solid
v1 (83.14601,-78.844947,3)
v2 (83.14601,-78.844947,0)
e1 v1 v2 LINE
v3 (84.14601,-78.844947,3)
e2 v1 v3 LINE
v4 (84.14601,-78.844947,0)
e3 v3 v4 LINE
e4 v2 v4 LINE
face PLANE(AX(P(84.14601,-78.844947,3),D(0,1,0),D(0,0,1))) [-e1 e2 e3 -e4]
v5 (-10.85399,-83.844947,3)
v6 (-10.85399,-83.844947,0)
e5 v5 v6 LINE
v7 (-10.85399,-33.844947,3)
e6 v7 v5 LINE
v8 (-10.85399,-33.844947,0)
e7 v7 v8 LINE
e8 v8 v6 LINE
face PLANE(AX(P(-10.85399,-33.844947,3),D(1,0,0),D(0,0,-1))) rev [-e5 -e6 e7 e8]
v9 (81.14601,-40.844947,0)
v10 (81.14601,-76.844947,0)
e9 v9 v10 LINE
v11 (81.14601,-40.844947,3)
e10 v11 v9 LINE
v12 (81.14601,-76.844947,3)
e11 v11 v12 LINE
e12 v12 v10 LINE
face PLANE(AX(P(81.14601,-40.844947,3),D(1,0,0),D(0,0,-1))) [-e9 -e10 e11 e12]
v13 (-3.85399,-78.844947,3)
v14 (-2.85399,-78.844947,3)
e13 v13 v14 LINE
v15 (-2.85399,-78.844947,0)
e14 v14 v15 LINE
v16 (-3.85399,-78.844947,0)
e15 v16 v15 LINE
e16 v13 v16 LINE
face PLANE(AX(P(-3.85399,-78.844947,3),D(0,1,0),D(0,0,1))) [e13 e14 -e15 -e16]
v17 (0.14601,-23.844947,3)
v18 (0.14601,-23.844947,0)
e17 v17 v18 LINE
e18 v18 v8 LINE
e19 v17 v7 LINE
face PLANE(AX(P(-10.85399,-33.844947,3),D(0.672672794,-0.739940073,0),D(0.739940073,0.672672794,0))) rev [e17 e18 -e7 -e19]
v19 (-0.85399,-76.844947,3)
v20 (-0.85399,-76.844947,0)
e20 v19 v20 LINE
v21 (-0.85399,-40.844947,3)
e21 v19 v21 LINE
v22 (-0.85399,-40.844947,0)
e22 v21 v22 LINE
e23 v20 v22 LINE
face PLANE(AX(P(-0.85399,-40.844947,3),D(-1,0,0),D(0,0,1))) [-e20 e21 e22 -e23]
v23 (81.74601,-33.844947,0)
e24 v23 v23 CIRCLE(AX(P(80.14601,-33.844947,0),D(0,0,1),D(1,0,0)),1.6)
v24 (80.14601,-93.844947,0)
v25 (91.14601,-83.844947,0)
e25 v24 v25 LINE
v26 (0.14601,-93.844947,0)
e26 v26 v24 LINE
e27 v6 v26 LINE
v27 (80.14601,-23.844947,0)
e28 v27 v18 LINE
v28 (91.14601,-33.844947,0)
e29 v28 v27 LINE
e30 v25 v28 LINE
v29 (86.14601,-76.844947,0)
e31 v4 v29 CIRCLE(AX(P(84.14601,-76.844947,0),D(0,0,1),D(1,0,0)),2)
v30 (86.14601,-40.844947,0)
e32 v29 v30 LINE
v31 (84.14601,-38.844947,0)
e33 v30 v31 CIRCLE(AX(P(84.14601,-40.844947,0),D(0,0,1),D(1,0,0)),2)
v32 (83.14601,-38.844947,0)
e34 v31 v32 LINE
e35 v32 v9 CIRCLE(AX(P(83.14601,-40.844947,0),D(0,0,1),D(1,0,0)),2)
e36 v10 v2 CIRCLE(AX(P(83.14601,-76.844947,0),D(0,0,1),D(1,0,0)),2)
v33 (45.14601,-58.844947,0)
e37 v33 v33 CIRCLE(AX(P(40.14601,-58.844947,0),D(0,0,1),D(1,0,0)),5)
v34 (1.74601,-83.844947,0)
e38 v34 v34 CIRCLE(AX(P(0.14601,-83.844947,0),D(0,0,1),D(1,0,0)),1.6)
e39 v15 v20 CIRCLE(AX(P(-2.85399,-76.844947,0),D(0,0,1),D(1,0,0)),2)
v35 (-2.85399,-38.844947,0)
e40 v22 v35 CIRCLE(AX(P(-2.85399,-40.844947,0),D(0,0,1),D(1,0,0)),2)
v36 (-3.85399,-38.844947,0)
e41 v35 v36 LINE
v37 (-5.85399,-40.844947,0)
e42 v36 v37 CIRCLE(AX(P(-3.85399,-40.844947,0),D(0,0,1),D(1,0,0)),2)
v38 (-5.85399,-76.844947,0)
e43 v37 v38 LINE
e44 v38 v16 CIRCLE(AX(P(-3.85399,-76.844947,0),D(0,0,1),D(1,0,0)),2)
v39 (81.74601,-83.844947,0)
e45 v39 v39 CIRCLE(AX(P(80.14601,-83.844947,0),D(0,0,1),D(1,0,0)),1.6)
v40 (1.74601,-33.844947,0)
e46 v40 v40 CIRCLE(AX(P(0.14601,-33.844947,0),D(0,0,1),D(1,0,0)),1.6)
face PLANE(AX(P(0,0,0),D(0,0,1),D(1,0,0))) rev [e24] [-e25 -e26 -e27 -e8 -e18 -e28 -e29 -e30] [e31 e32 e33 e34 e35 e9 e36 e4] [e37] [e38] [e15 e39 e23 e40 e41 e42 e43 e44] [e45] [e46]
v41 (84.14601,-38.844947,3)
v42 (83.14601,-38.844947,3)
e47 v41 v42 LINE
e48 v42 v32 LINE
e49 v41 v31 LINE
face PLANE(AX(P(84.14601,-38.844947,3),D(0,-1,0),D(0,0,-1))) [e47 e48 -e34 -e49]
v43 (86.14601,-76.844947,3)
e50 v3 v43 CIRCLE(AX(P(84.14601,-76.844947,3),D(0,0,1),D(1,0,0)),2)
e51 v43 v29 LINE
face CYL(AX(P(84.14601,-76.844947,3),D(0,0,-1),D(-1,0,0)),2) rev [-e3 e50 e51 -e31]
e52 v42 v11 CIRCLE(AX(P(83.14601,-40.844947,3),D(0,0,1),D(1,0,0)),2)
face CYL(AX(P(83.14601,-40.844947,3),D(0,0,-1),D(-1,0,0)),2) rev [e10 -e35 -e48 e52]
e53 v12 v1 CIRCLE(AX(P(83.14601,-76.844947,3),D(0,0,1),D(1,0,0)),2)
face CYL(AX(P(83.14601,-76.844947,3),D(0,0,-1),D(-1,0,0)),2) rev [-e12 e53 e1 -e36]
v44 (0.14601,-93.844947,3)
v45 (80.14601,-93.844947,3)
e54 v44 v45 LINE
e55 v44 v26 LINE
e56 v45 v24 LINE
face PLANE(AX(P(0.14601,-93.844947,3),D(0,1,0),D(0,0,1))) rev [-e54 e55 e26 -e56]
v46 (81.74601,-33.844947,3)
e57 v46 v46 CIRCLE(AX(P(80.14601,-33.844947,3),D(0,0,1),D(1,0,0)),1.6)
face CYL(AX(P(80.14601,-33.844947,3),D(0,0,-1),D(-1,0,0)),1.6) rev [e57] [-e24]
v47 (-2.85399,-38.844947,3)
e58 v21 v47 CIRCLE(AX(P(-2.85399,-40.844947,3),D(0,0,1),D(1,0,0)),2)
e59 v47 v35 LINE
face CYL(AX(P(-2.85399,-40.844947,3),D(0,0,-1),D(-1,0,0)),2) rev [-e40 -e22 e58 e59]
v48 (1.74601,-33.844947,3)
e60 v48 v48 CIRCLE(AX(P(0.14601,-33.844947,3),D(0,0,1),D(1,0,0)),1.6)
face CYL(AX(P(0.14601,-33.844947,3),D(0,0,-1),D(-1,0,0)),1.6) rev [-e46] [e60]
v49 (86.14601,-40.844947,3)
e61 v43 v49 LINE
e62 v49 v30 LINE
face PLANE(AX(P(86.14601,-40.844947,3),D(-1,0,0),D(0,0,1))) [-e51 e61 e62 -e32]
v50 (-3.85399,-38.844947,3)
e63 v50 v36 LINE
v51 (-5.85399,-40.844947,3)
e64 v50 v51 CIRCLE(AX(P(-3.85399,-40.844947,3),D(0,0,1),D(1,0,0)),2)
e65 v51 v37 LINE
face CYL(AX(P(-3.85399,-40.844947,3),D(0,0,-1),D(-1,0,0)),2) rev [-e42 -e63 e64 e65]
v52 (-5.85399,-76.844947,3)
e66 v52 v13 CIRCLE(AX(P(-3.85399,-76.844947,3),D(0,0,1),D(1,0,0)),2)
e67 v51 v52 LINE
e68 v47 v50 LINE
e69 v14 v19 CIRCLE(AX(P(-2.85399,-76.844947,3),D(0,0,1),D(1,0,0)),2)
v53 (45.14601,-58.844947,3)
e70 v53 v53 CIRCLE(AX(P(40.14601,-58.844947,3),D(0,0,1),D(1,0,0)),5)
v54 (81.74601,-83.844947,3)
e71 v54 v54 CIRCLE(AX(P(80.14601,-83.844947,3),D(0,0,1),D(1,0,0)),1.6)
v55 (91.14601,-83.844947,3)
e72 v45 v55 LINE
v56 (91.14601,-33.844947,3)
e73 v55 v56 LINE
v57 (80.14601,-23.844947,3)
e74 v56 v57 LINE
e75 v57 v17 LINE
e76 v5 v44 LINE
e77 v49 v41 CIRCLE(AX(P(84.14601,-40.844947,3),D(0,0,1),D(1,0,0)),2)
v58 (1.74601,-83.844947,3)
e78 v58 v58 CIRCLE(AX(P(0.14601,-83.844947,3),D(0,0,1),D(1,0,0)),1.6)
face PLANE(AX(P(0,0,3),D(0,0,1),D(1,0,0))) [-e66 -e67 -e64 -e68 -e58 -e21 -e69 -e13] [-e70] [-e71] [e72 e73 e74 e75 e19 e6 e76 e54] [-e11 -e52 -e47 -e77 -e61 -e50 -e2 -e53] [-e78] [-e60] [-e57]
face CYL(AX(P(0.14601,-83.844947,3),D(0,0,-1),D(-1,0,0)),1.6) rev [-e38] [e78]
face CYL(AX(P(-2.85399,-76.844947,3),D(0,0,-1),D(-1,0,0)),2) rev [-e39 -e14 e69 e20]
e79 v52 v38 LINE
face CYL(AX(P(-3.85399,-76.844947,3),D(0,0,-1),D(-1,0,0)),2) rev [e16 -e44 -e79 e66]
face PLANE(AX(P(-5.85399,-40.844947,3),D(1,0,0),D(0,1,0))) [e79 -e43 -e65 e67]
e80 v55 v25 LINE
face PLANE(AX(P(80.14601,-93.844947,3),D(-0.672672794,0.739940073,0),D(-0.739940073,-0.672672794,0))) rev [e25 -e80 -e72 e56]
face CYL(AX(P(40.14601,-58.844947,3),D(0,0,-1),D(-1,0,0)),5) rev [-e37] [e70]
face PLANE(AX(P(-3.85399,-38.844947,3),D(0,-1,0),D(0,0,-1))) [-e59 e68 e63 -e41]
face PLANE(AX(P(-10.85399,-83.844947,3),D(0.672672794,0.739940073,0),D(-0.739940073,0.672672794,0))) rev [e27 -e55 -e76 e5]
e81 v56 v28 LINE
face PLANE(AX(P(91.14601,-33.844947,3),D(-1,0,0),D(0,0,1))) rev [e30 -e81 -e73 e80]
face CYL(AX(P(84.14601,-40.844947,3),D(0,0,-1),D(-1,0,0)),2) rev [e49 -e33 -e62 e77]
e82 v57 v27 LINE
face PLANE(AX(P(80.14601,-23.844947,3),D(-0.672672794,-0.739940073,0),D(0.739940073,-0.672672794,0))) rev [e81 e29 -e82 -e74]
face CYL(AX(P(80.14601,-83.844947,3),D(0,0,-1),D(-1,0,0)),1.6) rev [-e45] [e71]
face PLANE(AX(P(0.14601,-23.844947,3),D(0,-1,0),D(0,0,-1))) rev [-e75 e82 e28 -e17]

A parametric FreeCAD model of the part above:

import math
import FreeCAD as App
import Part
import Sketcher

V = App.Vector


def add_polygon(sketch, points):
    """Adds a closed chain of lines whose ends are joined by coincident constraints."""
    first, n = sketch.GeometryCount, len(points)
    for a, b in zip(points, points[1:] + points[:1]):
        sketch.addGeometry(Part.LineSegment(App.Vector(*a, 0), App.Vector(*b, 0)), False)
    for i in range(n):
        sketch.addConstraint(Sketcher.Constraint("Coincident", first + i, 2, first + (i + 1) % n, 1))

doc = App.newDocument("Part")
body = doc.addObject("PartDesign::Body", "Body")

# Sketch on XY plane
sketch1 = doc.addObject("Sketcher::SketchObject", "Sketch")
body.addObject(sketch1)
sketch1.AttachmentSupport = (doc.XY_Plane, [""])
sketch1.MapMode = "FlatFace"
add_polygon(sketch1, [(0.14601, -23.844947), (-10.85399, -33.844947), (-10.85399, -83.844947), (0.14601, -93.844947), (80.14601, -93.844947), (91.14601, -83.844947), (91.14601, -33.844947), (80.14601, -23.844947)])  # lines 0-7
sketch1.addGeometry(Part.Circle(V(80.14601, -83.844947, 0), V(0, 0, 1), 1.6), False)  # 8
sketch1.addGeometry(Part.Circle(V(0.14601, -83.844947, 0), V(0, 0, 1), 1.6), False)  # 9
sketch1.addGeometry(Part.ArcOfCircle(Part.Circle(V(84.14601, -40.844947, 0), V(0, 0, 1), 2), math.radians(0), math.radians(90)), False)  # 10
sketch1.addGeometry(Part.LineSegment(V(86.14601, -40.844947, 0), V(86.14601, -76.844947, 0)), False)  # 11
sketch1.addGeometry(Part.ArcOfCircle(Part.Circle(V(84.14601, -76.844947, 0), V(0, 0, 1), 2), math.radians(-90), math.radians(0)), False)  # 12
sketch1.addGeometry(Part.LineSegment(V(84.14601, -78.844947, 0), V(83.14601, -78.844947, 0)), False)  # 13
sketch1.addGeometry(Part.ArcOfCircle(Part.Circle(V(83.14601, -76.844947, 0), V(0, 0, 1), 2), math.radians(-180), math.radians(-90)), False)  # 14
sketch1.addGeometry(Part.LineSegment(V(81.14601, -76.844947, 0), V(81.14601, -40.844947, 0)), False)  # 15
sketch1.addGeometry(Part.ArcOfCircle(Part.Circle(V(83.14601, -40.844947, 0), V(0, 0, 1), 2), math.radians(90), math.radians(180)), False)  # 16
sketch1.addGeometry(Part.LineSegment(V(83.14601, -38.844947, 0), V(84.14601, -38.844947, 0)), False)  # 17
sketch1.addGeometry(Part.Circle(V(80.14601, -33.844947, 0), V(0, 0, 1), 1.6), False)  # 18
sketch1.addGeometry(Part.Circle(V(40.14601, -58.844947, 0), V(0, 0, 1), 5), False)  # 19
sketch1.addGeometry(Part.LineSegment(V(-3.85399, -38.844947, 0), V(-2.85399, -38.844947, 0)), False)  # 20
sketch1.addGeometry(Part.ArcOfCircle(Part.Circle(V(-2.85399, -40.844947, 0), V(0, 0, 1), 2), math.radians(0), math.radians(90)), False)  # 21
sketch1.addGeometry(Part.LineSegment(V(-0.85399, -40.844947, 0), V(-0.85399, -76.844947, 0)), False)  # 22
sketch1.addGeometry(Part.ArcOfCircle(Part.Circle(V(-2.85399, -76.844947, 0), V(0, 0, 1), 2), math.radians(-90), math.radians(0)), False)  # 23
sketch1.addGeometry(Part.LineSegment(V(-2.85399, -78.844947, 0), V(-3.85399, -78.844947, 0)), False)  # 24
sketch1.addGeometry(Part.ArcOfCircle(Part.Circle(V(-3.85399, -76.844947, 0), V(0, 0, 1), 2), math.radians(-180), math.radians(-90)), False)  # 25
sketch1.addGeometry(Part.LineSegment(V(-5.85399, -76.844947, 0), V(-5.85399, -40.844947, 0)), False)  # 26
sketch1.addGeometry(Part.ArcOfCircle(Part.Circle(V(-3.85399, -40.844947, 0), V(0, 0, 1), 2), math.radians(90), math.radians(180)), False)  # 27
sketch1.addGeometry(Part.Circle(V(0.14601, -33.844947, 0), V(0, 0, 1), 1.6), False)  # 28
sketch1.addConstraint(Sketcher.Constraint("Tangent", 10, 1, 11, 1))
sketch1.addConstraint(Sketcher.Constraint("Tangent", 11, 2, 12, 2))
sketch1.addConstraint(Sketcher.Constraint("Tangent", 12, 1, 13, 1))
sketch1.addConstraint(Sketcher.Constraint("Tangent", 13, 2, 14, 2))
sketch1.addConstraint(Sketcher.Constraint("Tangent", 14, 1, 15, 1))
sketch1.addConstraint(Sketcher.Constraint("Tangent", 15, 2, 16, 2))
sketch1.addConstraint(Sketcher.Constraint("Tangent", 16, 1, 17, 1))
sketch1.addConstraint(Sketcher.Constraint("Tangent", 17, 2, 10, 2))
sketch1.addConstraint(Sketcher.Constraint("Tangent", 20, 2, 21, 2))
sketch1.addConstraint(Sketcher.Constraint("Tangent", 21, 1, 22, 1))
sketch1.addConstraint(Sketcher.Constraint("Tangent", 22, 2, 23, 2))
sketch1.addConstraint(Sketcher.Constraint("Tangent", 23, 1, 24, 1))
sketch1.addConstraint(Sketcher.Constraint("Tangent", 24, 2, 25, 2))
sketch1.addConstraint(Sketcher.Constraint("Tangent", 25, 1, 26, 1))
sketch1.addConstraint(Sketcher.Constraint("Tangent", 26, 2, 27, 2))
sketch1.addConstraint(Sketcher.Constraint("Tangent", 27, 1, 20, 1))
sketch1.addConstraint(Sketcher.Constraint("Vertical", 1))
sketch1.addConstraint(Sketcher.Constraint("Horizontal", 3))
sketch1.addConstraint(Sketcher.Constraint("Vertical", 5))
sketch1.addConstraint(Sketcher.Constraint("Horizontal", 7))
sketch1.addConstraint(Sketcher.Constraint("Vertical", 11))
sketch1.addConstraint(Sketcher.Constraint("Horizontal", 13))
sketch1.addConstraint(Sketcher.Constraint("Vertical", 15))
sketch1.addConstraint(Sketcher.Constraint("Horizontal", 17))
sketch1.addConstraint(Sketcher.Constraint("Horizontal", 20))
sketch1.addConstraint(Sketcher.Constraint("Vertical", 22))
sketch1.addConstraint(Sketcher.Constraint("Horizontal", 24))
sketch1.addConstraint(Sketcher.Constraint("Vertical", 26))
sketch1.addConstraint(Sketcher.Constraint("Equal", 8, 9))
sketch1.addConstraint(Sketcher.Constraint("Equal", 10, 12))
sketch1.addConstraint(Sketcher.Constraint("Equal", 12, 14))
sketch1.addConstraint(Sketcher.Constraint("Equal", 14, 16))
sketch1.addConstraint(Sketcher.Constraint("Equal", 9, 18))
sketch1.addConstraint(Sketcher.Constraint("Equal", 16, 21))
sketch1.addConstraint(Sketcher.Constraint("Equal", 21, 23))
sketch1.addConstraint(Sketcher.Constraint("Equal", 23, 25))
sketch1.addConstraint(Sketcher.Constraint("Equal", 25, 27))
sketch1.addConstraint(Sketcher.Constraint("Equal", 18, 28))
sketch1.addConstraint(Sketcher.Constraint("Parallel", 0, 4))
sketch1.addConstraint(Sketcher.Constraint("Parallel", 2, 6))
sketch1.addConstraint(Sketcher.Constraint("Horizontal", 8, 3, 9, 3))
sketch1.addConstraint(Sketcher.Constraint("Horizontal", 16, 3, 21, 3))
sketch1.addConstraint(Sketcher.Constraint("Horizontal", 14, 3, 23, 3))
sketch1.addConstraint(Sketcher.Constraint("Horizontal", 18, 3, 28, 3))
sketch1.addConstraint(Sketcher.Constraint("Horizontal", 28, 3, 0, 2))
sketch1.addConstraint(Sketcher.Constraint("Horizontal", 9, 3, 1, 2))
sketch1.addConstraint(Sketcher.Constraint("Horizontal", 1, 2, 4, 2))
sketch1.addConstraint(Sketcher.Constraint("Horizontal", 0, 2, 5, 2))
sketch1.addConstraint(Sketcher.Constraint("Vertical", 8, 3, 18, 3))
sketch1.addConstraint(Sketcher.Constraint("Vertical", 9, 3, 28, 3))
sketch1.addConstraint(Sketcher.Constraint("Vertical", 28, 3, 2, 2))
sketch1.addConstraint(Sketcher.Constraint("Vertical", 18, 3, 3, 2))
sketch1.addConstraint(Sketcher.Constraint("Vertical", 3, 2, 6, 2))
sketch1.addConstraint(Sketcher.Constraint("Vertical", 2, 2, 7, 2))
sketch1.addConstraint(Sketcher.Constraint("Equal", 17, 20))
sketch1.addConstraint(Sketcher.Constraint("Diameter", 19, 10.0))
sketch1.addConstraint(Sketcher.Constraint("Radius", 10, 2.0))
sketch1.addConstraint(Sketcher.Constraint("Diameter", 8, 3.2))
sketch1.addConstraint(Sketcher.Constraint("DistanceX", 3, 1, 3, 2, 80.0))
sketch1.addConstraint(Sketcher.Constraint("DistanceX", 13, 2, 13, 1, 1.0))
sketch1.addConstraint(Sketcher.Constraint("DistanceY", 1, 2, 1, 1, 50.0))
sketch1.addConstraint(Sketcher.Constraint("DistanceY", 11, 2, 11, 1, 36.0))
sketch1.addConstraint(Sketcher.Constraint("DistanceX", 8, 3, 10, 3, 4.0))
sketch1.addConstraint(Sketcher.Constraint("DistanceY", 8, 3, 10, 3, 43.0))
sketch1.addConstraint(Sketcher.Constraint("DistanceX", 19, 3, 16, 3, 43.0))
sketch1.addConstraint(Sketcher.Constraint("DistanceY", 19, 3, 16, 3, 18.0))
sketch1.addConstraint(Sketcher.Constraint("DistanceX", 21, 3, 9, 3, 3.0))
sketch1.addConstraint(Sketcher.Constraint("DistanceX", 0, 2, 27, 3, 7.0))
sketch1.addConstraint(Sketcher.Constraint("DistanceY", 2, 2, 9, 3, 10.0))
sketch1.addConstraint(Sketcher.Constraint("DistanceX", -1, 1, 8, 3, 80.14601))
sketch1.addConstraint(Sketcher.Constraint("DistanceY", 8, 3, -1, 1, 83.844947))
pad1 = doc.addObject("PartDesign::Pad", "Pad")
body.addObject(pad1)
pad1.Profile = sketch1
pad1.Length = 3

doc.recompute()
